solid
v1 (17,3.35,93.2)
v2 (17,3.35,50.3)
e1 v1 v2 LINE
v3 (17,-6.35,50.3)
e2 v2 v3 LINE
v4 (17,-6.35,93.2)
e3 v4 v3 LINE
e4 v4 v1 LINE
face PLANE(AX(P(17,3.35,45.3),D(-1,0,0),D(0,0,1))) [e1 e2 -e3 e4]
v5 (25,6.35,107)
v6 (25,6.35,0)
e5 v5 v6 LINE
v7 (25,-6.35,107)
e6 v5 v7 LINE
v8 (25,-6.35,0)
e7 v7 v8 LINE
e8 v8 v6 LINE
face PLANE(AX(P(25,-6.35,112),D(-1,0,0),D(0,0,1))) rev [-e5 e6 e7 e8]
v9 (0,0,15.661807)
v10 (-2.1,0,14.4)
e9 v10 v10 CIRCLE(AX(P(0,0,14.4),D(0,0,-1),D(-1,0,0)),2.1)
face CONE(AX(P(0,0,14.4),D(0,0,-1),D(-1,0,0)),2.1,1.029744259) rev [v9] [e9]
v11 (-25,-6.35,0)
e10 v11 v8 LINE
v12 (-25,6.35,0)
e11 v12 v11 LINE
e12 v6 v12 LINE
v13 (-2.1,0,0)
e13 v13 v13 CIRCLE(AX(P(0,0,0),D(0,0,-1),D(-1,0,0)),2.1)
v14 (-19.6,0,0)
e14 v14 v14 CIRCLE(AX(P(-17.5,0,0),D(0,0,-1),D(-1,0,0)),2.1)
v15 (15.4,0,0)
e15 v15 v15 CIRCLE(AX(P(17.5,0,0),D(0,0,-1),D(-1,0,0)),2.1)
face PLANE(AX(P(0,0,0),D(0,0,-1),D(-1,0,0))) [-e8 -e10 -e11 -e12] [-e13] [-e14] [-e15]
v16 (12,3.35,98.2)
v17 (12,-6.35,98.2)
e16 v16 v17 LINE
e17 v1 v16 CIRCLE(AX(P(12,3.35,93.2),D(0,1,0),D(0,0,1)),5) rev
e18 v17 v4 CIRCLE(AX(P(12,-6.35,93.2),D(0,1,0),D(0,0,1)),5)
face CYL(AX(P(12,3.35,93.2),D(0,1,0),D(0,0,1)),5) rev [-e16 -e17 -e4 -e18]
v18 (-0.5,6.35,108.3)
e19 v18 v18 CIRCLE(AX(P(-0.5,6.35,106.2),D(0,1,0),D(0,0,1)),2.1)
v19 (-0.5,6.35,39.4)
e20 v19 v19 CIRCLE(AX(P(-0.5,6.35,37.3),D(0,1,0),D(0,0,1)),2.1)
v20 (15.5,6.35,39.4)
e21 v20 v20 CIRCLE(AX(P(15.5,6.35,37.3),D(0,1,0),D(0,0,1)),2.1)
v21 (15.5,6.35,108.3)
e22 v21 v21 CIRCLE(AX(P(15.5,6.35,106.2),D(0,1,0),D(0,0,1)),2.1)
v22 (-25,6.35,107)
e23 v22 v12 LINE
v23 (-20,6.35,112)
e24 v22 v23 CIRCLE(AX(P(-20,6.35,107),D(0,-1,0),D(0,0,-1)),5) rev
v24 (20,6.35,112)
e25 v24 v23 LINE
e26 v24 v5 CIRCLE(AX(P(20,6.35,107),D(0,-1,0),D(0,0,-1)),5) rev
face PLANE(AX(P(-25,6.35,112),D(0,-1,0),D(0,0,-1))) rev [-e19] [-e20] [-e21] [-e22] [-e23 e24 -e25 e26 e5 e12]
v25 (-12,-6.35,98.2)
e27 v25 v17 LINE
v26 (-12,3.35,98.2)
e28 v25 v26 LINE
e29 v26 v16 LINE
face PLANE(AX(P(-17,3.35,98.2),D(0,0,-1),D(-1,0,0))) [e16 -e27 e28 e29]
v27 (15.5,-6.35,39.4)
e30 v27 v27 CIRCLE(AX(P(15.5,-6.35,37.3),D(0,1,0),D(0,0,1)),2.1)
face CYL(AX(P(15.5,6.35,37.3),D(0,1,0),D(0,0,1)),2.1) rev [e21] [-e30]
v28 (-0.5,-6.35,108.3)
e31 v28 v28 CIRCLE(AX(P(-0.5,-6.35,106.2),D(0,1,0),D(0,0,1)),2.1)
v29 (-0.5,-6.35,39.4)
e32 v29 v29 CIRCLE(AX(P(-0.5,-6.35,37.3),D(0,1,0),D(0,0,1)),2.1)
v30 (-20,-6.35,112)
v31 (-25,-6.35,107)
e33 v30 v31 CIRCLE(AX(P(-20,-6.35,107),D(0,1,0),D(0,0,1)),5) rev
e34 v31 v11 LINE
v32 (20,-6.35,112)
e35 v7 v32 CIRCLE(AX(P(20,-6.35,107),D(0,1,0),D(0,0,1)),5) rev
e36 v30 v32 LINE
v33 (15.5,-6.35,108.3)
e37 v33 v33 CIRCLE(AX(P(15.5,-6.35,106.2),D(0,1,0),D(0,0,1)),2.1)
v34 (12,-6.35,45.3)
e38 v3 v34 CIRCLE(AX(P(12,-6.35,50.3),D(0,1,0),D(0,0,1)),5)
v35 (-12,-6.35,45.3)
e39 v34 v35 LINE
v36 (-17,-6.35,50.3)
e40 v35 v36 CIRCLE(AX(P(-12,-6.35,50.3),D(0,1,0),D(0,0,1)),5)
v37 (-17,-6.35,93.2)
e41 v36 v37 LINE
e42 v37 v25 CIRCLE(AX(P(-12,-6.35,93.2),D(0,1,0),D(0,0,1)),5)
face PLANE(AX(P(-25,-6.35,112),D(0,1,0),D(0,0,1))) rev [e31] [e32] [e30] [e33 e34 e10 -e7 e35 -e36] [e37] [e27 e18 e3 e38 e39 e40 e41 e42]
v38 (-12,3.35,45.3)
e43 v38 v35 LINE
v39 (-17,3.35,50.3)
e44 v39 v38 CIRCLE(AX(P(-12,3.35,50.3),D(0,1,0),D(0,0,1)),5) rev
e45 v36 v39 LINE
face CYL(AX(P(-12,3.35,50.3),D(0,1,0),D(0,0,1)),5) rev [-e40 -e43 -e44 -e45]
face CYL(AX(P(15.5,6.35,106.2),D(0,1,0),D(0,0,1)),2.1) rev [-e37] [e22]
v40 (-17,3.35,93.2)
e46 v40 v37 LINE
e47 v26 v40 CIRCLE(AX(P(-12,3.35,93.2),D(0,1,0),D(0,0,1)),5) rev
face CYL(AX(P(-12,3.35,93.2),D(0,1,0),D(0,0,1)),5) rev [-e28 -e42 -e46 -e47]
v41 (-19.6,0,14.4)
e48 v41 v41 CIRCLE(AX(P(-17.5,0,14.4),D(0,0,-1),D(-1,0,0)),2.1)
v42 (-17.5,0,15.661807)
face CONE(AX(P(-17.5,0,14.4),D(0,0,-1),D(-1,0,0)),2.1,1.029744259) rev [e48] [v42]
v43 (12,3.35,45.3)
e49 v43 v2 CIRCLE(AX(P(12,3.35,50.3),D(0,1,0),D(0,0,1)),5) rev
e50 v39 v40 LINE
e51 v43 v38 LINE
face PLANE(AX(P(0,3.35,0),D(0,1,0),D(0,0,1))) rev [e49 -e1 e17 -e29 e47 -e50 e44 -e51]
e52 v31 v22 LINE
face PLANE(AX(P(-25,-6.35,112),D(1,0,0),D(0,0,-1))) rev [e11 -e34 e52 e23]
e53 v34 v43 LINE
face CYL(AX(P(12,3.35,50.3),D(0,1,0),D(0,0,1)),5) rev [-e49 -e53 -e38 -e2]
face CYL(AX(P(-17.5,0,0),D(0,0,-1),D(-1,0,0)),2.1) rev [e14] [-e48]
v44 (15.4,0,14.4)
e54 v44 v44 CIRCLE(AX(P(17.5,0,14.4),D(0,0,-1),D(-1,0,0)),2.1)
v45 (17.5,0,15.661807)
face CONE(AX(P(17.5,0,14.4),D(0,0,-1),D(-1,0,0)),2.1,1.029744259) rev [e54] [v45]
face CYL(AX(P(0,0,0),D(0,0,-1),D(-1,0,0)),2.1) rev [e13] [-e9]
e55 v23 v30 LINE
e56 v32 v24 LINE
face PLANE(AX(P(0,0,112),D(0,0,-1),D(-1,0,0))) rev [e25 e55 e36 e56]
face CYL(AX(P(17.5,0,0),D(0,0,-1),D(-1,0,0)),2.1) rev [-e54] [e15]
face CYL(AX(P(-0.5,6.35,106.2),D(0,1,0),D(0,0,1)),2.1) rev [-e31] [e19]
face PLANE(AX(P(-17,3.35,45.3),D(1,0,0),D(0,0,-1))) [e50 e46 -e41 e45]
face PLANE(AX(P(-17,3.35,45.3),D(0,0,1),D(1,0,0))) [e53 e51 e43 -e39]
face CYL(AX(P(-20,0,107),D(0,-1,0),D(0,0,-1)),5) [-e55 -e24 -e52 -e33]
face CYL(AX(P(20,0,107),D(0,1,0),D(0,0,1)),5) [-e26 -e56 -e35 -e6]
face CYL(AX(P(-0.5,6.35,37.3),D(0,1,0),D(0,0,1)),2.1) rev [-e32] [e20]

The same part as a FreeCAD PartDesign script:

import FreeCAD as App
import Part
import Sketcher
from FreeCAD import Vector
Q = App.Units.Quantity


def edges_at(feature, points):
    """Names of the edges that pass closest to the given points."""
    edges = feature.Shape.Edges
    near = lambda p: min(range(len(edges)), key=lambda i: edges[i].distToShape(Part.Vertex(*p))[0])
    return sorted({f"Edge{near(p) + 1}" for p in points})

doc = App.newDocument("Part")
body = doc.addObject("PartDesign::Body", "Body")

sketch1 = body.newObject("Sketcher::SketchObject", "Sketch")
sketch1.AttachmentSupport = (doc.getObject("XY_Plane"), [""])
sketch1.MapMode = "FlatFace"
sketch1.addGeometry([
    Part.LineSegment(Vector(-25, 6, 0), Vector(-25, -6, 0)),
    Part.LineSegment(Vector(-25, -6, 0), Vector(25, -6, 0)),
    Part.LineSegment(Vector(25, -6, 0), Vector(25, 6, 0)),
    Part.LineSegment(Vector(25, 6, 0), Vector(-25, 6, 0)),
], False)
sketch1.addConstraint([
    Sketcher.Constraint("Coincident", 0, 2, 1, 1),
    Sketcher.Constraint("Coincident", 1, 2, 2, 1),
    Sketcher.Constraint("Coincident", 2, 2, 3, 1),
    Sketcher.Constraint("Coincident", 3, 2, 0, 1),
    Sketcher.Constraint("Vertical", 0),
    Sketcher.Constraint("Horizontal", 1),
    Sketcher.Constraint("Vertical", 2),
    Sketcher.Constraint("Horizontal", 3),
    Sketcher.Constraint("Symmetric", 0, 2, 2, 2, -1, 1),
    Sketcher.Constraint("DistanceX", 1, 1, 1, 2, Q("50 mm")),
    Sketcher.Constraint("DistanceY", 0, 2, 0, 1, Q("12.7 mm")),
])
pad1 = body.newObject("PartDesign::Pad", "Pad")
pad1.Profile = sketch1
pad1.Length = 112

sketch2 = body.newObject("Sketcher::SketchObject", "Sketch001")
sketch2.AttachmentSupport = (doc.getObject("XY_Plane"), [""])
sketch2.MapMode = "FlatFace"
sketch2.addGeometry([
    Part.Circle(Vector(17.5, 0, 0), Vector(0, 0, 1), 2.1),
    Part.Circle(Vector(0, 0, 0), Vector(0, 0, 1), 2.1),
    Part.Circle(Vector(-17.5, 0, 0), Vector(0, 0, 1), 2.1),
], False)
sketch2.addConstraint([
    Sketcher.Constraint("Coincident", 1, 3, -1, 1),
    Sketcher.Constraint("Equal", 0, 1),
    Sketcher.Constraint("Equal", 1, 2),
    Sketcher.Constraint("Symmetric", 0, 3, 2, 3, -1, 1),
    Sketcher.Constraint("PointOnObject", 0, 3, -1),
    Sketcher.Constraint("Diameter", 0, Q("4.2 mm")),
    Sketcher.Constraint("DistanceX", 2, 3, 0, 3, Q("35 mm")),
])
doc.recompute()
hole = body.newObject("PartDesign::Hole", "Hole")
hole.Profile = sketch2
hole.ThreadType = "None"
hole.Diameter = 4.2
hole.DepthType = "Dimension"
hole.Depth = 14.4
hole.DrillPoint = "Angled"
hole.DrillPointAngle = 118
hole.Reversed = True

sketch3 = body.newObject("Sketcher::SketchObject", "Sketch002")
sketch3.AttachmentSupport = (doc.getObject("XZ_Plane"), [""])
sketch3.MapMode = "FlatFace"
sketch3.AttachmentOffset = App.Placement(Vector(0, 0, -6.35), App.Rotation())
sketch3.addGeometry([
    Part.Circle(Vector(-0.5, 37.3, 0), Vector(0, 0, 1), 2.1),
    Part.Circle(Vector(15.5, 37.3, 0), Vector(0, 0, 1), 2.1),
    Part.Circle(Vector(15.5, 106.2, 0), Vector(0, 0, 1), 2.1),
    Part.Circle(Vector(-0.5, 106.2, 0), Vector(0, 0, 1), 2.1),
], False)
sketch3.addConstraint([
    Sketcher.Constraint("Equal", 0, 1),
    Sketcher.Constraint("Equal", 1, 2),
    Sketcher.Constraint("Equal", 2, 3),
    Sketcher.Constraint("Horizontal", 0, 3, 1, 3),
    Sketcher.Constraint("Horizontal", 2, 3, 3, 3),
    Sketcher.Constraint("Vertical", 1, 3, 2, 3),
    Sketcher.Constraint("Vertical", 0, 3, 3, 3),
    Sketcher.Constraint("Diameter", 0, Q("4.2 mm")),
    Sketcher.Constraint("DistanceX", 0, 3, 1, 3, Q("16 mm")),
    Sketcher.Constraint("DistanceX", 0, 3, -1, 1, Q("0.5 mm")),
    Sketcher.Constraint("DistanceY", -1, 1, 0, 3, Q("37.3 mm")),
    Sketcher.Constraint("DistanceY", -1, 1, 2, 3, Q("106.2 mm")),
])
doc.recompute()
hole2 = body.newObject("PartDesign::Hole", "Hole001")
hole2.Profile = sketch3
hole2.ThreadType = "None"
hole2.Diameter = 4.2
hole2.DepthType = "ThroughAll"
hole2.Reversed = True

sketch4 = body.newObject("Sketcher::SketchObject", "Sketch003")
sketch4.AttachmentSupport = (doc.getObject("XZ_Plane"), [""])
sketch4.MapMode = "FlatFace"
sketch4.AttachmentOffset = App.Placement(Vector(0, 0, 6.35), App.Rotation())
sketch4.addGeometry([
    Part.LineSegment(Vector(-17, 45, 0), Vector(-17, 98, 0)),
    Part.LineSegment(Vector(-17, 98, 0), Vector(17, 98, 0)),
    Part.LineSegment(Vector(17, 98, 0), Vector(17, 45, 0)),
    Part.LineSegment(Vector(17, 45, 0), Vector(-17, 45, 0)),
], False)
sketch4.addConstraint([
    Sketcher.Constraint("Coincident", 0, 2, 1, 1),
    Sketcher.Constraint("Coincident", 1, 2, 2, 1),
    Sketcher.Constraint("Coincident", 2, 2, 3, 1),
    Sketcher.Constraint("Coincident", 3, 2, 0, 1),
    Sketcher.Constraint("Vertical", 0),
    Sketcher.Constraint("Horizontal", 1),
    Sketcher.Constraint("Vertical", 2),
    Sketcher.Constraint("Horizontal", 3),
    Sketcher.Constraint("DistanceX", 1, 1, 1, 2, Q("34 mm")),
    Sketcher.Constraint("DistanceY", 0, 1, 0, 2, Q("52.9 mm")),
    Sketcher.Constraint("DistanceX", 0, 2, -1, 1, Q("17 mm")),
    Sketcher.Constraint("DistanceY", -1, 1, 0, 2, Q("98.2 mm")),
])
pocket1 = body.newObject("PartDesign::Pocket", "Pocket")
pocket1.Profile = sketch4
pocket1.Length = 9.7
doc.recompute()

fillet = body.newObject("PartDesign::Fillet", "Fillet")
fillet.Base = (pocket1, edges_at(pocket1, [
    (-25, 0, 112),
    (25, 0, 112),
    (-17, -1.5, 45.3),
    (-17, -1.5, 98.2),
    (17, -1.5, 98.2),
    (17, -1.5, 45.3),
]))
fillet.Radius = 5

doc.recompute()
